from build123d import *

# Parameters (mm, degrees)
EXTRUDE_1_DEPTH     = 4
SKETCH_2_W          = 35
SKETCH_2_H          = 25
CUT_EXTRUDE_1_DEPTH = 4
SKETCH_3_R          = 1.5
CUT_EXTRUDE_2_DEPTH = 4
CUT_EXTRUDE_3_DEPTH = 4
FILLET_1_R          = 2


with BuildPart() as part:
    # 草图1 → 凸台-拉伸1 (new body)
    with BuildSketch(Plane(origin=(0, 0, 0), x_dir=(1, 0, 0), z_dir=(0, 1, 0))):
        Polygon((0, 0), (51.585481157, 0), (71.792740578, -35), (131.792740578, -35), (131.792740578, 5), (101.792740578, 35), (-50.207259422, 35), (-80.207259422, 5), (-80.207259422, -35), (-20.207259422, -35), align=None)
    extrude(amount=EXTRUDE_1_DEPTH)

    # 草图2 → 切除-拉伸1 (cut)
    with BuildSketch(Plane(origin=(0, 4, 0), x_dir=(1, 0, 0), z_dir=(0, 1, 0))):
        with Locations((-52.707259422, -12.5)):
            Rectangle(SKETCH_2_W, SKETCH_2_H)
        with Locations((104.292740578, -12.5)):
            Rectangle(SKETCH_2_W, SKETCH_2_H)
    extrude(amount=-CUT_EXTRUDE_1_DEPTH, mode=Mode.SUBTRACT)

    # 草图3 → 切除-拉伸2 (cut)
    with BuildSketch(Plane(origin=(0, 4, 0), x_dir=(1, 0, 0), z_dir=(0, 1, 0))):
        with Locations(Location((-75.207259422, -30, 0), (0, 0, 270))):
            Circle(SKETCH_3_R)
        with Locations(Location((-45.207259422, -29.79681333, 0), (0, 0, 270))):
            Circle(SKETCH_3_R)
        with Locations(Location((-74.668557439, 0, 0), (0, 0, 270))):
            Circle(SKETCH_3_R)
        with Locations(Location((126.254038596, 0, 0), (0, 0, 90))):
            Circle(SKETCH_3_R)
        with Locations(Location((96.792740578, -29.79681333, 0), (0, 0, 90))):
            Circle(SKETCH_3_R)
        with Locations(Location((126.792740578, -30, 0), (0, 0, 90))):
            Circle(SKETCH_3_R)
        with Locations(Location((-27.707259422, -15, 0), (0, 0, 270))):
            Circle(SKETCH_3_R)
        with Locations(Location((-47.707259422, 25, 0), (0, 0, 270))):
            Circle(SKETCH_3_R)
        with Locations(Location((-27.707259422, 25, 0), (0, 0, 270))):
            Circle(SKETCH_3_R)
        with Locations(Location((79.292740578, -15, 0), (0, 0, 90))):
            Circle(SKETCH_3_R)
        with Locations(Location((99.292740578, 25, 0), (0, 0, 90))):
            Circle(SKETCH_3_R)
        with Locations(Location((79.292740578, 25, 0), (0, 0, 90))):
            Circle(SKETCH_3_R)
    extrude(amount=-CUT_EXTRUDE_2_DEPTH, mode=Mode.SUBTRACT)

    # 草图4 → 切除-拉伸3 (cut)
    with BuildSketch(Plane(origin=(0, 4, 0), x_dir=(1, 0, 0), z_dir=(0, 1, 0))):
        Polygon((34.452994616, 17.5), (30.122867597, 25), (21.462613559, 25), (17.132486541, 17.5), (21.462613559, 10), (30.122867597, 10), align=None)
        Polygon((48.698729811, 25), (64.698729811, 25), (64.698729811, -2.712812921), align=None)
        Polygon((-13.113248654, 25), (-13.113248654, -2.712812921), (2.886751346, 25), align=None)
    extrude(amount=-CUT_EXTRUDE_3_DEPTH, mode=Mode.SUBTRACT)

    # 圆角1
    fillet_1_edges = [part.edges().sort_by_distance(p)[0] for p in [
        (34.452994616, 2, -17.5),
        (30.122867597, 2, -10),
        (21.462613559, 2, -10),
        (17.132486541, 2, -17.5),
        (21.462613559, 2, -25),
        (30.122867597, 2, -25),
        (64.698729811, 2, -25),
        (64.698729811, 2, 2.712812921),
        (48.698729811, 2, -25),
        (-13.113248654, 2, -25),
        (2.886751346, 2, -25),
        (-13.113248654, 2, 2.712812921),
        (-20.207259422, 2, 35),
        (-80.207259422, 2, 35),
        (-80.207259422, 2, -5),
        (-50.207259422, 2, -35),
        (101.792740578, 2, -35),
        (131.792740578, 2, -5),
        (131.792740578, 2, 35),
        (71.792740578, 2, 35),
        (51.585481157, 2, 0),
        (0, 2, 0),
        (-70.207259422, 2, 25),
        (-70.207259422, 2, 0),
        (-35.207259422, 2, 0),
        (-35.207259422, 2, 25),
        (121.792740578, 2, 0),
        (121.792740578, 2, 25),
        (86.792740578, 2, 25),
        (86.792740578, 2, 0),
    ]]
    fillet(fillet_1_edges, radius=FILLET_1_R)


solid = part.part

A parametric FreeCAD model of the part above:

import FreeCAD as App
import Part
import Sketcher
Q = App.Units.Quantity


def edges_at(feature, points):
    """Names of the edges that pass closest to the given points."""
    edges = feature.Shape.Edges
    near = lambda p: min(range(len(edges)), key=lambda i: edges[i].distToShape(Part.Vertex(*p))[0])
    return sorted({f"Edge{near(p) + 1}" for p in points})

doc = App.newDocument("Part")
body = doc.addObject("PartDesign::Body", "Body")

sketch1 = doc.addObject("Sketcher::SketchObject", "Sketch")
body.addObject(sketch1)
sketch1.AttachmentSupport = (doc.XZ_Plane, [""])
sketch1.MapMode = "FlatFace"
sketch1.addGeometry([
    Part.LineSegment(App.Vector(0, 0, 0), App.Vector(52, 0, 0)),
    Part.LineSegment(App.Vector(52, 0, 0), App.Vector(72, 35, 0)),
    Part.LineSegment(App.Vector(72, 35, 0), App.Vector(132, 35, 0)),
    Part.LineSegment(App.Vector(132, 35, 0), App.Vector(132, -5, 0)),
    Part.LineSegment(App.Vector(132, -5, 0), App.Vector(102, -35, 0)),
    Part.LineSegment(App.Vector(102, -35, 0), App.Vector(-50, -35, 0)),
    Part.LineSegment(App.Vector(-50, -35, 0), App.Vector(-80, -5, 0)),
    Part.LineSegment(App.Vector(-80, -5, 0), App.Vector(-80, 35, 0)),
    Part.LineSegment(App.Vector(-80, 35, 0), App.Vector(-20, 35, 0)),
    Part.LineSegment(App.Vector(-20, 35, 0), App.Vector(0, 0, 0)),
], False)
sketch1.addConstraint([
    Sketcher.Constraint("Coincident", 0, 2, 1, 1),
    Sketcher.Constraint("Coincident", 1, 2, 2, 1),
    Sketcher.Constraint("Coincident", 2, 2, 3, 1),
    Sketcher.Constraint("Coincident", 3, 2, 4, 1),
    Sketcher.Constraint("Coincident", 4, 2, 5, 1),
    Sketcher.Constraint("Coincident", 5, 2, 6, 1),
    Sketcher.Constraint("Coincident", 6, 2, 7, 1),
    Sketcher.Constraint("Coincident", 7, 2, 8, 1),
    Sketcher.Constraint("Coincident", 8, 2, 9, 1),
    Sketcher.Constraint("Coincident", 9, 2, 0, 1),
    Sketcher.Constraint("Horizontal", 0),
    Sketcher.Constraint("Horizontal", 2),
    Sketcher.Constraint("Vertical", 3),
    Sketcher.Constraint("Horizontal", 5),
    Sketcher.Constraint("Vertical", 7),
    Sketcher.Constraint("Horizontal", 8),
    Sketcher.Constraint("Coincident", 9, 2, -1, 1),
    Sketcher.Constraint("Perpendicular", 4, 6),
    Sketcher.Constraint("Horizontal", 3, 2, 6, 2),
    Sketcher.Constraint("Horizontal", 2, 2, 7, 2),
    Sketcher.Constraint("Equal", 2, 8),
    Sketcher.Constraint("Equal", 4, 6),
    Sketcher.Constraint("Equal", 1, 9),
    Sketcher.Constraint("DistanceX", 2, 1, 2, 2, Q("60 mm")),
    Sketcher.Constraint("DistanceX", 5, 2, 5, 1, Q("152 mm")),
    Sketcher.Constraint("DistanceY", 3, 2, 3, 1, Q("40 mm")),
    Sketcher.Constraint("Angle", 1, Q("60 deg")),
    Sketcher.Constraint("DistanceY", -1, 1, 1, 2, Q("35 mm")),
    Sketcher.Constraint("DistanceY", 4, 2, -1, 1, Q("35 mm")),
])
pad1 = doc.addObject("PartDesign::Pad", "Pad")
body.addObject(pad1)
pad1.Profile = sketch1
pad1.Length = 4
pad1.Reversed = True

sketch2 = doc.addObject("Sketcher::SketchObject", "Sketch001")
body.addObject(sketch2)
sketch2.AttachmentSupport = (doc.XZ_Plane, [""])
sketch2.MapMode = "FlatFace"
sketch2.AttachmentOffset = App.Placement(App.Vector(0, 0, -4), App.Rotation())
sketch2.addGeometry([
    Part.LineSegment(App.Vector(-70, 0, 0), App.Vector(-70, 25, 0)),
    Part.LineSegment(App.Vector(-70, 25, 0), App.Vector(-35, 25, 0)),
    Part.LineSegment(App.Vector(-35, 25, 0), App.Vector(-35, 0, 0)),
    Part.LineSegment(App.Vector(-35, 0, 0), App.Vector(-70, 0, 0)),
    Part.LineSegment(App.Vector(87, 0, 0), App.Vector(87, 25, 0)),
    Part.LineSegment(App.Vector(87, 25, 0), App.Vector(122, 25, 0)),
    Part.LineSegment(App.Vector(122, 25, 0), App.Vector(122, 0, 0)),
    Part.LineSegment(App.Vector(122, 0, 0), App.Vector(87, 0, 0)),
], False)
sketch2.addConstraint([
    Sketcher.Constraint("Coincident", 0, 2, 1, 1),
    Sketcher.Constraint("Coincident", 1, 2, 2, 1),
    Sketcher.Constraint("Coincident", 2, 2, 3, 1),
    Sketcher.Constraint("Coincident", 3, 2, 0, 1),
    Sketcher.Constraint("Coincident", 4, 2, 5, 1),
    Sketcher.Constraint("Coincident", 5, 2, 6, 1),
    Sketcher.Constraint("Coincident", 6, 2, 7, 1),
    Sketcher.Constraint("Coincident", 7, 2, 4, 1),
    Sketcher.Constraint("Vertical", 0),
    Sketcher.Constraint("Horizontal", 1),
    Sketcher.Constraint("Vertical", 2),
    Sketcher.Constraint("Horizontal", 3),
    Sketcher.Constraint("Vertical", 4),
    Sketcher.Constraint("Horizontal", 5),
    Sketcher.Constraint("Vertical", 6),
    Sketcher.Constraint("Horizontal", 7),
    Sketcher.Constraint("PointOnObject", 2, 2, -1),
    Sketcher.Constraint("PointOnObject", 6, 2, -1),
    Sketcher.Constraint("Horizontal", 1, 2, 4, 2),
    Sketcher.Constraint("Equal", 3, 5),
    Sketcher.Constraint("DistanceX", 1, 1, 1, 2, Q("35 mm")),
    Sketcher.Constraint("DistanceY", 0, 1, 0, 2, Q("25 mm")),
    Sketcher.Constraint("DistanceX", 1, 2, 4, 2, Q("122 mm")),
    Sketcher.Constraint("DistanceX", 0, 2, -1, 1, Q("70.207259 mm")),
])
pocket1 = doc.addObject("PartDesign::Pocket", "Pocket")
body.addObject(pocket1)
pocket1.Profile = sketch2
pocket1.Length = 4
pocket1.Reversed = True

sketch3 = doc.addObject("Sketcher::SketchObject", "Sketch002")
body.addObject(sketch3)
sketch3.AttachmentSupport = (doc.XZ_Plane, [""])
sketch3.MapMode = "FlatFace"
sketch3.AttachmentOffset = App.Placement(App.Vector(0, 0, -4), App.Rotation())
sketch3.addGeometry([
    Part.Circle(App.Vector(-75.2, 30, 0), App.Vector(0, 0, 1), 1.5),
    Part.Circle(App.Vector(-45.2, 29.8, 0), App.Vector(0, 0, 1), 1.5),
    Part.Circle(App.Vector(-74.7, 0, 0), App.Vector(0, 0, 1), 1.5),
    Part.Circle(App.Vector(126.3, 0, 0), App.Vector(0, 0, 1), 1.5),
    Part.Circle(App.Vector(96.8, 29.8, 0), App.Vector(0, 0, 1), 1.5),
    Part.Circle(App.Vector(126.8, 30, 0), App.Vector(0, 0, 1), 1.5),
    Part.Circle(App.Vector(-27.7, 15, 0), App.Vector(0, 0, 1), 1.5),
    Part.Circle(App.Vector(-47.7, -25, 0), App.Vector(0, 0, 1), 1.5),
    Part.Circle(App.Vector(-27.7, -25, 0), App.Vector(0, 0, 1), 1.5),
    Part.Circle(App.Vector(79.3, 15, 0), App.Vector(0, 0, 1), 1.5),
    Part.Circle(App.Vector(99.3, -25, 0), App.Vector(0, 0, 1), 1.5),
    Part.Circle(App.Vector(79.3, -25, 0), App.Vector(0, 0, 1), 1.5),
], False)
sketch3.addConstraint([
    Sketcher.Constraint("Equal", 0, 1),
    Sketcher.Constraint("Equal", 1, 2),
    Sketcher.Constraint("Equal", 2, 3),
    Sketcher.Constraint("Equal", 3, 4),
    Sketcher.Constraint("Equal", 4, 5),
    Sketcher.Constraint("Equal", 5, 6),
    Sketcher.Constraint("Equal", 6, 7),
    Sketcher.Constraint("Equal", 7, 8),
    Sketcher.Constraint("Equal", 8, 9),
    Sketcher.Constraint("Equal", 9, 10),
    Sketcher.Constraint("Equal", 10, 11),
    Sketcher.Constraint("PointOnObject", 2, 3, -1),
    Sketcher.Constraint("PointOnObject", 3, 3, -1),
    Sketcher.Constraint("Horizontal", 1, 3, 4, 3),
    Sketcher.Constraint("Horizontal", 0, 3, 5, 3),
    Sketcher.Constraint("Horizontal", 7, 3, 8, 3),
    Sketcher.Constraint("Horizontal", 6, 3, 9, 3),
    Sketcher.Constraint("Horizontal", 8, 3, 10, 3),
    Sketcher.Constraint("Horizontal", 10, 3, 11, 3),
    Sketcher.Constraint("Vertical", 6, 3, 8, 3),
    Sketcher.Constraint("Vertical", 9, 3, 11, 3),
    Sketcher.Constraint("Diameter", 0, Q("3 mm")),
    Sketcher.Constraint("DistanceY", -1, 1, 0, 3, Q("30 mm")),
    Sketcher.Constraint("DistanceY", -1, 1, 6, 3, Q("15 mm")),
    Sketcher.Constraint("DistanceY", 7, 3, -1, 1, Q("25 mm")),
    Sketcher.Constraint("DistanceX", 0, 3, 1, 3, Q("30 mm")),
    Sketcher.Constraint("DistanceX", 1, 3, 4, 3, Q("142 mm")),
    Sketcher.Constraint("DistanceX", 4, 3, 5, 3, Q("30 mm")),
    Sketcher.Constraint("DistanceX", 7, 3, 6, 3, Q("20 mm")),
    Sketcher.Constraint("DistanceX", 6, 3, 9, 3, Q("107 mm")),
    Sketcher.Constraint("DistanceX", 9, 3, 10, 3, Q("20 mm")),
    Sketcher.Constraint("DistanceX", 1, 3, 6, 3, Q("17.5 mm")),
    Sketcher.Constraint("DistanceX", 0, 3, 2, 3, Q("0.538702 mm")),
    Sketcher.Constraint("DistanceX", 1, 3, 3, 3, Q("171.461298 mm")),
    Sketcher.Constraint("DistanceX", 0, 3, -1, 1, Q("75.207259 mm")),
    Sketcher.Constraint("DistanceY", -1, 1, 1, 3, Q("29.796813 mm")),
])
pocket2 = doc.addObject("PartDesign::Pocket", "Pocket001")
body.addObject(pocket2)
pocket2.Profile = sketch3
pocket2.Length = 4
pocket2.Reversed = True

sketch4 = doc.addObject("Sketcher::SketchObject", "Sketch003")
body.addObject(sketch4)
sketch4.AttachmentSupport = (doc.XZ_Plane, [""])
sketch4.MapMode = "FlatFace"
sketch4.AttachmentOffset = App.Placement(App.Vector(0, 0, -4), App.Rotation())
sketch4.addGeometry([
    Part.LineSegment(App.Vector(34, -18, 0), App.Vector(30, -25, 0)),
    Part.LineSegment(App.Vector(30, -25, 0), App.Vector(21, -25, 0)),
    Part.LineSegment(App.Vector(21, -25, 0), App.Vector(17, -18, 0)),
    Part.LineSegment(App.Vector(17, -18, 0), App.Vector(21, -10, 0)),
    Part.LineSegment(App.Vector(21, -10, 0), App.Vector(30, -10, 0)),
    Part.LineSegment(App.Vector(30, -10, 0), App.Vector(34, -18, 0)),
    Part.LineSegment(App.Vector(65, -25, 0), App.Vector(49, -25, 0)),
    Part.LineSegment(App.Vector(49, -25, 0), App.Vector(65, 3, 0)),
    Part.LineSegment(App.Vector(65, 3, 0), App.Vector(65, -25, 0)),
    Part.LineSegment(App.Vector(-13, -25, 0), App.Vector(-13, 3, 0)),
    Part.LineSegment(App.Vector(-13, 3, 0), App.Vector(3, -25, 0)),
    Part.LineSegment(App.Vector(3, -25, 0), App.Vector(-13, -25, 0)),
], False)
sketch4.addConstraint([
    Sketcher.Constraint("Coincident", 0, 2, 1, 1),
    Sketcher.Constraint("Coincident", 1, 2, 2, 1),
    Sketcher.Constraint("Coincident", 2, 2, 3, 1),
    Sketcher.Constraint("Coincident", 3, 2, 4, 1),
    Sketcher.Constraint("Coincident", 4, 2, 5, 1),
    Sketcher.Constraint("Coincident", 5, 2, 0, 1),
    Sketcher.Constraint("Coincident", 6, 2, 7, 1),
    Sketcher.Constraint("Coincident", 7, 2, 8, 1),
    Sketcher.Constraint("Coincident", 8, 2, 6, 1),
    Sketcher.Constraint("Coincident", 9, 2, 10, 1),
    Sketcher.Constraint("Coincident", 10, 2, 11, 1),
    Sketcher.Constraint("Coincident", 11, 2, 9, 1),
    Sketcher.Constraint("Horizontal", 1),
    Sketcher.Constraint("Horizontal", 4),
    Sketcher.Constraint("Horizontal", 6),
    Sketcher.Constraint("Vertical", 8),
    Sketcher.Constraint("Vertical", 9),
    Sketcher.Constraint("Horizontal", 11),
    Sketcher.Constraint("Parallel", 0, 3),
    Sketcher.Constraint("Parallel", 2, 5),
    Sketcher.Constraint("Parallel", 3, 7),
    Sketcher.Constraint("Parallel", 5, 10),
    Sketcher.Constraint("Horizontal", 2, 2, 5, 2),
    Sketcher.Constraint("Horizontal", 1, 2, 6, 2),
    Sketcher.Constraint("Horizontal", 7, 2, 9, 2),
    Sketcher.Constraint("Horizontal", 8, 2, 10, 2),
    Sketcher.Constraint("Vertical", 1, 2, 3, 2),
    Sketcher.Constraint("Vertical", 0, 2, 4, 2),
    Sketcher.Constraint("DistanceX", 6, 2, 6, 1, Q("16 mm")),
    Sketcher.Constraint("Angle", 0, Q("-120 deg")),
    Sketcher.Constraint("DistanceY", 0, 2, -1, 1, Q("25 mm")),
    Sketcher.Constraint("DistanceY", 3, 2, -1, 1, Q("10 mm")),
    Sketcher.Constraint("DistanceX", 1, 2, 1, 1, Q("8.660254 mm")),
    Sketcher.Constraint("DistanceX", -1, 1, 6, 2, Q("48.69873 mm")),
    Sketcher.Constraint("DistanceX", 9, 2, -1, 1, Q("13.113249 mm")),
    Sketcher.Constraint("DistanceX", -1, 1, 0, 2, Q("30.122868 mm")),
])
pocket3 = doc.addObject("PartDesign::Pocket", "Pocket002")
body.addObject(pocket3)
pocket3.Profile = sketch4
pocket3.Length = 4
pocket3.Reversed = True
doc.recompute()

fillet = doc.addObject("PartDesign::Fillet", "Fillet")
body.addObject(fillet)
fillet.Base = (pocket3, edges_at(pocket3, [
    (34.453, 2, -17.5),
    (30.123, 2, -10),
    (21.463, 2, -10),
    (17.132, 2, -17.5),
    (21.463, 2, -25),
    (30.123, 2, -25),
    (64.699, 2, -25),
    (64.699, 2, 2.713),
    (48.699, 2, -25),
    (-13.113, 2, -25),
    (2.887, 2, -25),
    (-13.113, 2, 2.713),
    (-20.207, 2, 35),
    (-80.207, 2, 35),
    (-80.207, 2, -5),
    (-50.207, 2, -35),
    (101.793, 2, -35),
    (131.793, 2, -5),
    (131.793, 2, 35),
    (71.793, 2, 35),
    (51.585, 2, 0),
    (0, 2, 0),
    (-70.207, 2, 25),
    (-70.207, 2, 0),
    (-35.207, 2, 0),
    (-35.207, 2, 25),
    (121.793, 2, 0),
    (121.793, 2, 25),
    (86.793, 2, 25),
    (86.793, 2, 0),
]))
fillet.Radius = 2

doc.recompute()
